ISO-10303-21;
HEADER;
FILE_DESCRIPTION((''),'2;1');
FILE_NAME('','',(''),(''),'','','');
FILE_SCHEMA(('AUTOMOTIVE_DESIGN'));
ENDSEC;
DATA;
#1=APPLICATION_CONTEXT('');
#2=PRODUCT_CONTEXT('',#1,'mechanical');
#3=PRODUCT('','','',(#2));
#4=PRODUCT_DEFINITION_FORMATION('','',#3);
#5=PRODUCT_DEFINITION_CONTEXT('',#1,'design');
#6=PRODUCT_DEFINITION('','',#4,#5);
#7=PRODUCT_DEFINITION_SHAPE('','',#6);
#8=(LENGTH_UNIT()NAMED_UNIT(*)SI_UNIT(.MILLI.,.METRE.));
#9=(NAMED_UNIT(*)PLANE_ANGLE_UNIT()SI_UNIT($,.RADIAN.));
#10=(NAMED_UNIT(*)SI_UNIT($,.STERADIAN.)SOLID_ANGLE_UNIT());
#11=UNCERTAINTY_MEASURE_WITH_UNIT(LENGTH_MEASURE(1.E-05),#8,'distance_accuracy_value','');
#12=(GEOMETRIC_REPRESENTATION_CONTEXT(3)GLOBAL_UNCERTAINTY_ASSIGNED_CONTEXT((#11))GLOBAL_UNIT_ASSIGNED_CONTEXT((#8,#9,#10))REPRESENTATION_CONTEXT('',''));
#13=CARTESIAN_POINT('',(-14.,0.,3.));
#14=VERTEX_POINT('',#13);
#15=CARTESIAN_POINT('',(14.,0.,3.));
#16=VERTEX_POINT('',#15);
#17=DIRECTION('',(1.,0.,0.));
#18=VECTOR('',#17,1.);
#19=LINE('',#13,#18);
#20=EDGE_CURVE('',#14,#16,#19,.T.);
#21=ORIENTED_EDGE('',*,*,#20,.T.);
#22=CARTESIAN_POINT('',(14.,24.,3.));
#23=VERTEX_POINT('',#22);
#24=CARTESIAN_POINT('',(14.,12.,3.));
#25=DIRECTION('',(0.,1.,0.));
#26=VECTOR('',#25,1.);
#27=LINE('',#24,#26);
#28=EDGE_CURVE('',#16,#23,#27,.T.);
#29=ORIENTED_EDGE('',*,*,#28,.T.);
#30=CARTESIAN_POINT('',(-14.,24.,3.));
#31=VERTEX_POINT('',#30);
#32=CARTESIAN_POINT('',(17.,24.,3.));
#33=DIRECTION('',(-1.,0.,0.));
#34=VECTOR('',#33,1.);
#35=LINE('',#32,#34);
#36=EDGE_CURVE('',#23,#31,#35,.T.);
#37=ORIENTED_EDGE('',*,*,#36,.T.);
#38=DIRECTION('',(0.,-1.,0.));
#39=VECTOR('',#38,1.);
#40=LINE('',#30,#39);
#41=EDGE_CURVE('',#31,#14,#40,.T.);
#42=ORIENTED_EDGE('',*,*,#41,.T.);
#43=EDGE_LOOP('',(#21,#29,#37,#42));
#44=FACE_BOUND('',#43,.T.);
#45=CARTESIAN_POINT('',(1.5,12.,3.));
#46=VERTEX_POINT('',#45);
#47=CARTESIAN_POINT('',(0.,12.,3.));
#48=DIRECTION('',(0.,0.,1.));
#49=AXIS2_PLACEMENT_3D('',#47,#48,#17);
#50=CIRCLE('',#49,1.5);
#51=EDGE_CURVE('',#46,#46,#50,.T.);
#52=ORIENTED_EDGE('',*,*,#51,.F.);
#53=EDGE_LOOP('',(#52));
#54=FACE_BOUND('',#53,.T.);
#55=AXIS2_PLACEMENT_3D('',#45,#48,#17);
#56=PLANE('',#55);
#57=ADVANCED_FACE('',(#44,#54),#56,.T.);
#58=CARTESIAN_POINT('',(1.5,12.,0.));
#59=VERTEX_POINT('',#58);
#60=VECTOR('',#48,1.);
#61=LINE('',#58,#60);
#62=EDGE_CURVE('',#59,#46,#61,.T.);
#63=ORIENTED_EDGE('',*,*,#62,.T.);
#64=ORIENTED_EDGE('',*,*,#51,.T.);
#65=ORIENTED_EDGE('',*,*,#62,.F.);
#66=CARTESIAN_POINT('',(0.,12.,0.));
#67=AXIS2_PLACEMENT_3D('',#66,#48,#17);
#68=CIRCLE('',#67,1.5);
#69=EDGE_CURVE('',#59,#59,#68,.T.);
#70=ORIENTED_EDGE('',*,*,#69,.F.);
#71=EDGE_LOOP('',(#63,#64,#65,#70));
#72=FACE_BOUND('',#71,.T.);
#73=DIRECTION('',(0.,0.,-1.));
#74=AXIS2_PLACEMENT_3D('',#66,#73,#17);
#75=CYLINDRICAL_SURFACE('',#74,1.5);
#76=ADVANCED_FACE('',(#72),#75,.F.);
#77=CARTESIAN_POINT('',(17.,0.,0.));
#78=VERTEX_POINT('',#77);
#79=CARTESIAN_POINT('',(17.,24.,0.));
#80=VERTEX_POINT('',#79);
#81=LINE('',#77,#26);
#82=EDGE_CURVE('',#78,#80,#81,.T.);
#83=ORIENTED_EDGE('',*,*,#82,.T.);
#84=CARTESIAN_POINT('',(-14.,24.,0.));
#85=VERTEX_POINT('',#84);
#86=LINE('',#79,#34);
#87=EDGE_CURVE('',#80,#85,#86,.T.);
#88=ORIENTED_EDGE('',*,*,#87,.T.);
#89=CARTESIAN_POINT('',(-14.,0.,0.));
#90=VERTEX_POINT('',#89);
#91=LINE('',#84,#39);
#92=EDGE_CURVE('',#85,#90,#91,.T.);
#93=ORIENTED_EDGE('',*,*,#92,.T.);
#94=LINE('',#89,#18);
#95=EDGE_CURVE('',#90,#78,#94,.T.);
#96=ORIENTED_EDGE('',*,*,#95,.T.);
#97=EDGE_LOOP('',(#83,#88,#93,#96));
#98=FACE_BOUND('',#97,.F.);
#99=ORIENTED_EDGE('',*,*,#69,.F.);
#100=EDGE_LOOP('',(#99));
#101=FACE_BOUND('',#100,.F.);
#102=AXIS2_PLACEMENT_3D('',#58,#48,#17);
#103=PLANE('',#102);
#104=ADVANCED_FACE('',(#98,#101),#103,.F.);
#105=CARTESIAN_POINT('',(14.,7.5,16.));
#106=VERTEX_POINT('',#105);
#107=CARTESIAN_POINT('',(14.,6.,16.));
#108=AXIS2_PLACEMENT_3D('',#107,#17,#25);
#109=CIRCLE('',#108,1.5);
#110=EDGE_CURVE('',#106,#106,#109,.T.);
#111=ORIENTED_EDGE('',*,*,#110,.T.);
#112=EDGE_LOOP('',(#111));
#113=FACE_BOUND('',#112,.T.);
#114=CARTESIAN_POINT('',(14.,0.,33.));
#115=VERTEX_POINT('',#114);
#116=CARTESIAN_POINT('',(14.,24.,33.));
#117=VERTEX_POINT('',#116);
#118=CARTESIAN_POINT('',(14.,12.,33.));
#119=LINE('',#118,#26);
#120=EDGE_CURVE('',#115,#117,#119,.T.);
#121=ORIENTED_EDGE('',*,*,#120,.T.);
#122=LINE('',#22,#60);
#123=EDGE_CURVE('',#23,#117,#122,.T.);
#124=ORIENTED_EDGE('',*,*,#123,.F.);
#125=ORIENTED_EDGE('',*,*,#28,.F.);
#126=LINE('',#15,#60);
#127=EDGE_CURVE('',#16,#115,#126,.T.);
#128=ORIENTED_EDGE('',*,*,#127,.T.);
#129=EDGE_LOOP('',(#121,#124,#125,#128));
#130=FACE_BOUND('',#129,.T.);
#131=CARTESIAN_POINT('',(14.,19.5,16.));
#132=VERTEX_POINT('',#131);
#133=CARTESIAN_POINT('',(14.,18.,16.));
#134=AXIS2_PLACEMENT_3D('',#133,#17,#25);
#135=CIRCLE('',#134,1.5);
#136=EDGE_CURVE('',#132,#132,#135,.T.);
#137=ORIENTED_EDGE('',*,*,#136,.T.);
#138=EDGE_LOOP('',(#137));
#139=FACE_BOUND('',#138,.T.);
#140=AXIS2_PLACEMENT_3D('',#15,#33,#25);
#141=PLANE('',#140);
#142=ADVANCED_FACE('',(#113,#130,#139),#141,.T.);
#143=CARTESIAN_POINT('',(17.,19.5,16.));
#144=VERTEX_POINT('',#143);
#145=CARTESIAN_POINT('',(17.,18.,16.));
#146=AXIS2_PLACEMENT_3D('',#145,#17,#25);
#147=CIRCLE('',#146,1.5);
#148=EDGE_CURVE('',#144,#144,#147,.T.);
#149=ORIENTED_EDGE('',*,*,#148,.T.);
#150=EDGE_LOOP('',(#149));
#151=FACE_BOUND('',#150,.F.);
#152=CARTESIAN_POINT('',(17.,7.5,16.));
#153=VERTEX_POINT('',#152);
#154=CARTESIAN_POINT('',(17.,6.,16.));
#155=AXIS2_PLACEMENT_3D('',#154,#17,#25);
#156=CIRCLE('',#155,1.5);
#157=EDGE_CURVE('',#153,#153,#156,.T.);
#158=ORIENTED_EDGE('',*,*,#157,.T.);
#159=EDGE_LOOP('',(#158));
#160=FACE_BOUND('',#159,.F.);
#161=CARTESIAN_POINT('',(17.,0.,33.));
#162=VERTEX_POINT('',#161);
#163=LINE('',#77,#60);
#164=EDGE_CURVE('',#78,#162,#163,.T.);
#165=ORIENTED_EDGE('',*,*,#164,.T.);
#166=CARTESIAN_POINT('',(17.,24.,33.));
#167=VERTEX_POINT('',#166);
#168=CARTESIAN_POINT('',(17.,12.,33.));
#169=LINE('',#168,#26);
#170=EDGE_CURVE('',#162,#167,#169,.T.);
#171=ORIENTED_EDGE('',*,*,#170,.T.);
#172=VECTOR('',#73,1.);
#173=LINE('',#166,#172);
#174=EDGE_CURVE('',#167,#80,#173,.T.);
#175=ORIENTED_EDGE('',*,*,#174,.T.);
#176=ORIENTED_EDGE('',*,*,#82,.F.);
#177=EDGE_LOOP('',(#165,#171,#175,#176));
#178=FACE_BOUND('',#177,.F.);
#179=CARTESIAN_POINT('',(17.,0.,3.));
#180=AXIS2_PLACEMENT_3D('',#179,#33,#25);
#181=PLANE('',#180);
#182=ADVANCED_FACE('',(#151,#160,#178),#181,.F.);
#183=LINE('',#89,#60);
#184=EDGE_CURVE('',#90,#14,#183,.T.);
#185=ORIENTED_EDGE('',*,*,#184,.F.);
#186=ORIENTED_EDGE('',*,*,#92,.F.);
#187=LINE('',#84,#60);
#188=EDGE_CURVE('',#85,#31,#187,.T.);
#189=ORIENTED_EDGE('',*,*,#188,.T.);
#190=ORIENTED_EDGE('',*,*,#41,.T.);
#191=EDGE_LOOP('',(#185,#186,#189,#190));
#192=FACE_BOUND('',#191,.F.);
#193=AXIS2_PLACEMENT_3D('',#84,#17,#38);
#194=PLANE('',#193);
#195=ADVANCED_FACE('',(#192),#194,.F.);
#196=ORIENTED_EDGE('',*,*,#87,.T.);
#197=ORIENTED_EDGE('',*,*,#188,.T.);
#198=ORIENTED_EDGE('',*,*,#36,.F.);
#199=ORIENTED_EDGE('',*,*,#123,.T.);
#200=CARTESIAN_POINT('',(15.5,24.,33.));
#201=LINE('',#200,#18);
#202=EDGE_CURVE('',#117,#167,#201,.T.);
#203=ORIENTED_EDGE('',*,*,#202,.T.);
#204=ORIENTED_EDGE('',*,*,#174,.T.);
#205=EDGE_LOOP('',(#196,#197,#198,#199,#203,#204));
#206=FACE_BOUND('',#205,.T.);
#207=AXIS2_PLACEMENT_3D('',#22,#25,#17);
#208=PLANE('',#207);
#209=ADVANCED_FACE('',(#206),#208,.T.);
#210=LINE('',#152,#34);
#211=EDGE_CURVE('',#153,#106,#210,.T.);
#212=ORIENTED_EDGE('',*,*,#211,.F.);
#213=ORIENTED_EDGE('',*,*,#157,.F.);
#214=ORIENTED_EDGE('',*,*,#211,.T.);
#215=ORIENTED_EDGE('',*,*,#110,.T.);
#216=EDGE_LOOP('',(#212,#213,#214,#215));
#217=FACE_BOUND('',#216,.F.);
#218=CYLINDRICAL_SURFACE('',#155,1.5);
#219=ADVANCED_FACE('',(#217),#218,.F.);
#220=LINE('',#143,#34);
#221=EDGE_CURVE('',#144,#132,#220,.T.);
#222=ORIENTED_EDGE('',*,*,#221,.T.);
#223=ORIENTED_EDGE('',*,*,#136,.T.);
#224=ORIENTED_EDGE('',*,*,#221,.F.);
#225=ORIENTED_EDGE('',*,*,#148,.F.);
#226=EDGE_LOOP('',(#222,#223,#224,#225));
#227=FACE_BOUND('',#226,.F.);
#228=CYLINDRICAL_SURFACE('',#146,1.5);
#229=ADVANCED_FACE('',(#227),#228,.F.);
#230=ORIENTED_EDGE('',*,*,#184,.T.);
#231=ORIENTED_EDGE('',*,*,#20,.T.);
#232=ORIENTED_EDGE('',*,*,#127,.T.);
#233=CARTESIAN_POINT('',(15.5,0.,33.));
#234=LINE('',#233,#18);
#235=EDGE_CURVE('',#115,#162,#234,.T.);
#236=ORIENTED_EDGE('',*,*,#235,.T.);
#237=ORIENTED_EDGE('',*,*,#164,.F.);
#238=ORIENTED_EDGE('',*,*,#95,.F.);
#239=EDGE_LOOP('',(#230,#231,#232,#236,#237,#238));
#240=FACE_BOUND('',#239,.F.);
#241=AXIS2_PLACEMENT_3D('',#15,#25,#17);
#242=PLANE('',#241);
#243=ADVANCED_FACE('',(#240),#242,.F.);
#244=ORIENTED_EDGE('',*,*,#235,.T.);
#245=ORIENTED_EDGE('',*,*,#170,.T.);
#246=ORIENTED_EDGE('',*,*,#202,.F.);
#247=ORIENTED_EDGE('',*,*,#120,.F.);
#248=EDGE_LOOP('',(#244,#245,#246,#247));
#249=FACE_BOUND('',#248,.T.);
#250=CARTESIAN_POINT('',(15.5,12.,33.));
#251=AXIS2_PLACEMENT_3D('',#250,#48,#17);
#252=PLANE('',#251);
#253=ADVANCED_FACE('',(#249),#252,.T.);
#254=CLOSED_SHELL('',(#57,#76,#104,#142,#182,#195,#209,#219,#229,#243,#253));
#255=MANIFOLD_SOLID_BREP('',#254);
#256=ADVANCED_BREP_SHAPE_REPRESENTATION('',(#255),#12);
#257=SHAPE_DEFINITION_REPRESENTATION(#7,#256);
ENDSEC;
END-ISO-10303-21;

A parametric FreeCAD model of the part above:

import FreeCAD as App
import Part
import Sketcher
Q = App.Units.Quantity

doc = App.newDocument("Part")
body = doc.addObject("PartDesign::Body", "Body")

# Sketch on XY plane
sketch1 = body.newObject("Sketcher::SketchObject", "Sketch")
sketch1.AttachmentSupport = (doc.getObject("XY_Plane"), [""])
sketch1.MapMode = "FlatFace"
sketch1.addGeometry([
    Part.LineSegment(App.Vector(-14, 0, 0), App.Vector(17, 0, 0)),  # 0
    Part.LineSegment(App.Vector(17, 0, 0), App.Vector(17, 24, 0)),  # 1
    Part.LineSegment(App.Vector(17, 24, 0), App.Vector(-14, 24, 0)),  # 2
    Part.LineSegment(App.Vector(-14, 24, 0), App.Vector(-14, 0, 0)),  # 3
    Part.Circle(App.Vector(0, 12, 0), App.Vector(0, 0, 1), 1.5),  # 4
], False)
sketch1.addConstraint([
    Sketcher.Constraint("Coincident", 0, 2, 1, 1),
    Sketcher.Constraint("Coincident", 1, 2, 2, 1),
    Sketcher.Constraint("Coincident", 2, 2, 3, 1),
    Sketcher.Constraint("Coincident", 3, 2, 0, 1),
    Sketcher.Constraint("Horizontal", 0),
    Sketcher.Constraint("Vertical", 1),
    Sketcher.Constraint("Horizontal", 2),
    Sketcher.Constraint("Vertical", 3),
    Sketcher.Constraint("PointOnObject", 4, 3, -2),
    Sketcher.Constraint("PointOnObject", 0, 2, -1),
    Sketcher.Constraint("Diameter", 4, Q("3 mm")),
    Sketcher.Constraint("DistanceX", 0, 1, 0, 2, Q("31 mm")),
    Sketcher.Constraint("DistanceY", 1, 1, 1, 2, Q("24 mm")),
    Sketcher.Constraint("DistanceY", -1, 1, 4, 3, Q("12 mm")),
    Sketcher.Constraint("DistanceX", -1, 1, 0, 2, Q("17 mm")),
])
pad1 = body.newObject("PartDesign::Pad", "Pad")
pad1.Profile = sketch1
pad1.Length = 3

# Sketch on XY plane
sketch2 = body.newObject("Sketcher::SketchObject", "Sketch001")
sketch2.AttachmentSupport = (doc.getObject("XY_Plane"), [""])
sketch2.MapMode = "FlatFace"
sketch2.AttachmentOffset = App.Placement(App.Vector(0, 0, 3), App.Rotation())
sketch2.addGeometry([
    Part.LineSegment(App.Vector(14, 24, 0), App.Vector(14, 0, 0)),
    Part.LineSegment(App.Vector(14, 0, 0), App.Vector(17, 0, 0)),
    Part.LineSegment(App.Vector(17, 0, 0), App.Vector(17, 24, 0)),
    Part.LineSegment(App.Vector(17, 24, 0), App.Vector(14, 24, 0)),
], False)
sketch2.addConstraint([
    Sketcher.Constraint("Coincident", 0, 2, 1, 1),
    Sketcher.Constraint("Coincident", 1, 2, 2, 1),
    Sketcher.Constraint("Coincident", 2, 2, 3, 1),
    Sketcher.Constraint("Coincident", 3, 2, 0, 1),
    Sketcher.Constraint("Vertical", 0),
    Sketcher.Constraint("Horizontal", 1),
    Sketcher.Constraint("Vertical", 2),
    Sketcher.Constraint("Horizontal", 3),
    Sketcher.Constraint("PointOnObject", 0, 2, -1),
    Sketcher.Constraint("DistanceX", 1, 1, 1, 2, Q("3 mm")),
    Sketcher.Constraint("DistanceY", 0, 2, 0, 1, Q("24 mm")),
    Sketcher.Constraint("DistanceX", -1, 1, 0, 2, Q("14 mm")),
])
pad2 = body.newObject("PartDesign::Pad", "Pad001")
pad2.Profile = sketch2
pad2.Length = 30

# Sketch on YZ plane
sketch3 = body.newObject("Sketcher::SketchObject", "Sketch002")
sketch3.AttachmentSupport = (doc.getObject("YZ_Plane"), [""])
sketch3.MapMode = "FlatFace"
sketch3.AttachmentOffset = App.Placement(App.Vector(0, 0, 17), App.Rotation())
sketch3.addGeometry([
    Part.Circle(App.Vector(6, 16, 0), App.Vector(0, 0, 1), 1.5),
    Part.Circle(App.Vector(18, 16, 0), App.Vector(0, 0, 1), 1.5),
], False)
sketch3.addConstraint([
    Sketcher.Constraint("Equal", 0, 1),
    Sketcher.Constraint("Horizontal", 0, 3, 1, 3),
    Sketcher.Constraint("Diameter", 0, Q("3 mm")),
    Sketcher.Constraint("DistanceX", -1, 1, 0, 3, Q("6 mm")),
    Sketcher.Constraint("DistanceY", -1, 1, 0, 3, Q("16 mm")),
    Sketcher.Constraint("DistanceX", -1, 1, 1, 3, Q("18 mm")),
])
pocket1 = body.newObject("PartDesign::Pocket", "Pocket")
pocket1.Profile = sketch3
pocket1.Length = 25

doc.recompute()
